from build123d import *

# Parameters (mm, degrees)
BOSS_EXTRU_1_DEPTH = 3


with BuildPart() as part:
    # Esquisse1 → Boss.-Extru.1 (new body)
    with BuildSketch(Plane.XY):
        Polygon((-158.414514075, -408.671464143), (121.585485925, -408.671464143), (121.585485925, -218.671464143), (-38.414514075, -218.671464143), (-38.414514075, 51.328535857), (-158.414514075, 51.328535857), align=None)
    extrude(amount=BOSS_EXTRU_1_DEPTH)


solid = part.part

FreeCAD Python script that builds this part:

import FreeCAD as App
import Part
import Sketcher

V = App.Vector
Q = App.Units.Quantity


def add_polygon(sketch, points):
    """Adds a closed chain of lines whose ends are joined by coincident constraints."""
    first, n = sketch.GeometryCount, len(points)
    for a, b in zip(points, points[1:] + points[:1]):
        sketch.addGeometry(Part.LineSegment(App.Vector(*a, 0), App.Vector(*b, 0)), False)
    for i in range(n):
        sketch.addConstraint(Sketcher.Constraint("Coincident", first + i, 2, first + (i + 1) % n, 1))

doc = App.newDocument("Part")
params = doc.addObject("Spreadsheet::Sheet", "Params")
for row, (alias, value) in enumerate([
    ("sketch1_width", "280 mm"),
    ("sketch1_width2", "160 mm"),
    ("sketch1_height", "190 mm"),
    ("sketch1_height2", "270 mm"),
    ("pad1_length", "3 mm"),
], start=1):
    params.set(f"A{row}", alias)
    params.set(f"B{row}", "=" + value)
    params.setAlias(f"B{row}", alias)

body = doc.addObject("PartDesign::Body", "Body")

# Sketch on XY plane
sketch1 = doc.addObject("Sketcher::SketchObject", "Sketch")
body.addObject(sketch1)
sketch1.AttachmentSupport = (doc.XY_Plane, [""])
sketch1.MapMode = "FlatFace"
add_polygon(sketch1, [(-158.414514, -408.671464), (121.585486, -408.671464), (121.585486, -218.671464), (-38.414514, -218.671464), (-38.414514, 51.328536), (-158.414514, 51.328536)])  # lines 0-5
sketch1.addConstraint([
    Sketcher.Constraint("Horizontal", 0),
    Sketcher.Constraint("Vertical", 1),
    Sketcher.Constraint("Horizontal", 2),
    Sketcher.Constraint("Vertical", 3),
    Sketcher.Constraint("Horizontal", 4),
    Sketcher.Constraint("Vertical", 5),
    Sketcher.Constraint("DistanceX", 0, 1, 0, 2, Q("280 mm")),
    Sketcher.Constraint("DistanceX", 2, 2, 2, 1, Q("160 mm")),
    Sketcher.Constraint("DistanceY", 1, 1, 1, 2, Q("190 mm")),
    Sketcher.Constraint("DistanceY", 3, 1, 3, 2, Q("270 mm")),
    Sketcher.Constraint("DistanceX", -1, 1, 0, 2, Q("121.585486 mm")),
    Sketcher.Constraint("DistanceY", 0, 2, -1, 1, Q("408.671464 mm")),
])
sketch1.setExpression("Constraints[12]", "Params.sketch1_width")
sketch1.setExpression("Constraints[13]", "Params.sketch1_width2")
sketch1.setExpression("Constraints[14]", "Params.sketch1_height")
sketch1.setExpression("Constraints[15]", "Params.sketch1_height2")
pad1 = doc.addObject("PartDesign::Pad", "Pad")
body.addObject(pad1)
pad1.Profile = sketch1
pad1.setExpression("Length", "Params.pad1_length")

doc.recompute()
